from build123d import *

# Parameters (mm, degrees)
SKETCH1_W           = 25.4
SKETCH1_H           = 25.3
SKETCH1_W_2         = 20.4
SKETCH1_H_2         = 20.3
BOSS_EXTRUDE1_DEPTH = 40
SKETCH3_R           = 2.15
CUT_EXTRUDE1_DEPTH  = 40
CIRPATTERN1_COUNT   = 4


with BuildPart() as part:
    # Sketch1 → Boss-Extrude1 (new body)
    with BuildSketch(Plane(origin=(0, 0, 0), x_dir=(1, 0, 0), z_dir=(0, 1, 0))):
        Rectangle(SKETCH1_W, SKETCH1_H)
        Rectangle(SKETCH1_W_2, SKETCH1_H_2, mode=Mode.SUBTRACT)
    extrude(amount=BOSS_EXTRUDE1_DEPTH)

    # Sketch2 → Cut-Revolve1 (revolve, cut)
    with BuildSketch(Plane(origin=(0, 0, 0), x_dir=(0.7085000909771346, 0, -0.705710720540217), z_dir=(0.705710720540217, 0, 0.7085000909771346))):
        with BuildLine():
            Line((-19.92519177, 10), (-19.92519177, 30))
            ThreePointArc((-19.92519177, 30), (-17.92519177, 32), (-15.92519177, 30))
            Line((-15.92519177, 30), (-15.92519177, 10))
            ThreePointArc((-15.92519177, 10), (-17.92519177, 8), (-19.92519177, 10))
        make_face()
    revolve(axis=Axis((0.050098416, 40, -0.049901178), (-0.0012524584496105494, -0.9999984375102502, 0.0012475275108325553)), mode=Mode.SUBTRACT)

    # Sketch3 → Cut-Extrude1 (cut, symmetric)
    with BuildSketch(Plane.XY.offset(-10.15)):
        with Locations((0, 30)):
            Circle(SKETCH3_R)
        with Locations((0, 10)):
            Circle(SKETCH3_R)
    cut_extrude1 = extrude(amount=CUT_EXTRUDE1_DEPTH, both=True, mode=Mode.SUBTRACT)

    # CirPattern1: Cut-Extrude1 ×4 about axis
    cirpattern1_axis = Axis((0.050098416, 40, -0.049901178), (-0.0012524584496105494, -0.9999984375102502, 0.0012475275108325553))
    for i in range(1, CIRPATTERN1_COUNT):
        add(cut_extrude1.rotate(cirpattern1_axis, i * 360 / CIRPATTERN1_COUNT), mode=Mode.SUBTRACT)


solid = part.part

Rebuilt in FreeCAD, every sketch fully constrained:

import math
import FreeCAD as App
import Part
import Sketcher
from FreeCAD import Vector


def add_polygon(sketch, points):
    """Adds a closed chain of lines whose ends are joined by coincident constraints."""
    first, n = sketch.GeometryCount, len(points)
    for a, b in zip(points, points[1:] + points[:1]):
        sketch.addGeometry(Part.LineSegment(App.Vector(*a, 0), App.Vector(*b, 0)), False)
    for i in range(n):
        sketch.addConstraint(Sketcher.Constraint("Coincident", first + i, 2, first + (i + 1) % n, 1))

doc = App.newDocument("Part")
body = doc.addObject("PartDesign::Body", "Body")

sketch1 = doc.addObject("Sketcher::SketchObject", "Sketch")
body.addObject(sketch1)
sketch1.AttachmentSupport = (doc.XZ_Plane, [""])
sketch1.MapMode = "FlatFace"
add_polygon(sketch1, [(-12.7, -12.65), (-12.7, 12.65), (12.7, 12.65), (12.7, -12.65)])
add_polygon(sketch1, [(10.2, 10.15), (-10.2, 10.15), (-10.2, -10.15), (10.2, -10.15)])
sketch1.addConstraint([
    Sketcher.Constraint("Vertical", 0),
    Sketcher.Constraint("Horizontal", 1),
    Sketcher.Constraint("Vertical", 2),
    Sketcher.Constraint("Horizontal", 3),
    Sketcher.Constraint("Horizontal", 4),
    Sketcher.Constraint("Vertical", 5),
    Sketcher.Constraint("Horizontal", 6),
    Sketcher.Constraint("Vertical", 7),
    Sketcher.Constraint("Symmetric", 0, 2, 2, 2, -1, 1),
    Sketcher.Constraint("Symmetric", 4, 2, 6, 2, -1, 1),
    Sketcher.Constraint("DistanceX", 1, 1, 1, 2, 25.4),
    Sketcher.Constraint("DistanceX", 4, 2, 4, 1, 20.4),
    Sketcher.Constraint("DistanceY", 0, 1, 0, 2, 25.3),
    Sketcher.Constraint("DistanceY", 5, 2, 5, 1, 20.3),
])
pad1 = doc.addObject("PartDesign::Pad", "Pad")
body.addObject(pad1)
pad1.Profile = sketch1
pad1.Length = 40
pad1.Reversed = True

sketch2 = doc.addObject("Sketcher::SketchObject", "Sketch001")
body.addObject(sketch2)
sketch2.Placement = App.Placement(Vector(0, 0, 0), App.Rotation(Vector(0.708500091, 0, -0.705710721), Vector(0, 1.000000001, 0), Vector(0.705710721, 0, 0.708500091), "ZXY"))
sketch2.addGeometry([
    Part.LineSegment(Vector(-19.925192, 30, 0), Vector(-19.925192, 10, 0)),
    Part.ArcOfCircle(Part.Circle(Vector(-17.925192, 10, 0), Vector(0, 0, 1), 2), math.radians(180), math.radians(360)),
    Part.LineSegment(Vector(-15.925192, 10, 0), Vector(-15.925192, 30, 0)),
    Part.ArcOfCircle(Part.Circle(Vector(-17.925192, 30, 0), Vector(0, 0, 1), 2), math.radians(0), math.radians(180)),
], False)
sketch2.addGeometry(Part.LineSegment(Vector(0.052983, 29.971754, 0), Vector(0.017615, 9.964746, 0)), True)
sketch2.addConstraint([
    Sketcher.Constraint("Tangent", 0, 2, 1, 1),
    Sketcher.Constraint("Tangent", 1, 2, 2, 1),
    Sketcher.Constraint("Tangent", 2, 2, 3, 1),
    Sketcher.Constraint("Tangent", 3, 2, 0, 1),
    Sketcher.Constraint("Vertical", 0),
    Sketcher.Constraint("Vertical", 2),
    Sketcher.Constraint("Radius", 1, 2.0),
    Sketcher.Constraint("DistanceY", 0, 2, 0, 1, 20.0),
    Sketcher.Constraint("DistanceY", -1, 1, 1, 3, 10.0),
    Sketcher.Constraint("Distance", 4, 20.00704),
    Sketcher.Constraint("DistanceX", 1, 3, -1, 1, 17.925192),
    Sketcher.Constraint("DistanceX", -1, 1, 4, 1, 0.052983),
    Sketcher.Constraint("DistanceY", -1, 1, 4, 1, 29.971754),
    Sketcher.Constraint("DistanceX", -1, 1, 4, 2, 0.017615),
])
groove = doc.addObject("PartDesign::Groove", "Groove")
body.addObject(groove)
groove.Profile = sketch2
groove.ReferenceAxis = (sketch2, ["Axis0"])
groove.Angle = 360

sketch3 = doc.addObject("Sketcher::SketchObject", "Sketch002")
body.addObject(sketch3)
sketch3.AttachmentSupport = (doc.XY_Plane, [""])
sketch3.MapMode = "FlatFace"
sketch3.AttachmentOffset = App.Placement(Vector(0, 0, -10.15), App.Rotation())
sketch3.addGeometry([
    Part.Circle(Vector(0, 30, 0), Vector(0, 0, 1), 2.15),
    Part.Circle(Vector(0, 10, 0), Vector(0, 0, 1), 2.15),
], False)
sketch3.addConstraint([
    Sketcher.Constraint("Equal", 0, 1),
    Sketcher.Constraint("PointOnObject", 0, 3, -2),
    Sketcher.Constraint("PointOnObject", 1, 3, -2),
    Sketcher.Constraint("Diameter", 0, 4.3),
    Sketcher.Constraint("DistanceY", -1, 1, 0, 3, 30.0),
    Sketcher.Constraint("DistanceY", -1, 1, 1, 3, 10.0),
])
pocket1 = doc.addObject("PartDesign::Pocket", "Pocket")
body.addObject(pocket1)
pocket1.Profile = sketch3
pocket1.Length = 80
pocket1.Midplane = True
doc.recompute()

datumline = doc.addObject("PartDesign::Line", "DatumLine")
body.addObject(datumline)
datumline.Placement = App.Placement(Vector(0, 0, 0), App.Rotation(Vector(0, 0, 1), Vector(-0.001252458, -0.999998438, 0.001247528)))
polarpattern = doc.addObject("PartDesign::PolarPattern", "PolarPattern")
body.addObject(polarpattern)
polarpattern.Originals = [pocket1]
polarpattern.Axis = (datumline, [""])
polarpattern.Angle = 360
polarpattern.Occurrences = 4
body.Tip = polarpattern

doc.recompute()
